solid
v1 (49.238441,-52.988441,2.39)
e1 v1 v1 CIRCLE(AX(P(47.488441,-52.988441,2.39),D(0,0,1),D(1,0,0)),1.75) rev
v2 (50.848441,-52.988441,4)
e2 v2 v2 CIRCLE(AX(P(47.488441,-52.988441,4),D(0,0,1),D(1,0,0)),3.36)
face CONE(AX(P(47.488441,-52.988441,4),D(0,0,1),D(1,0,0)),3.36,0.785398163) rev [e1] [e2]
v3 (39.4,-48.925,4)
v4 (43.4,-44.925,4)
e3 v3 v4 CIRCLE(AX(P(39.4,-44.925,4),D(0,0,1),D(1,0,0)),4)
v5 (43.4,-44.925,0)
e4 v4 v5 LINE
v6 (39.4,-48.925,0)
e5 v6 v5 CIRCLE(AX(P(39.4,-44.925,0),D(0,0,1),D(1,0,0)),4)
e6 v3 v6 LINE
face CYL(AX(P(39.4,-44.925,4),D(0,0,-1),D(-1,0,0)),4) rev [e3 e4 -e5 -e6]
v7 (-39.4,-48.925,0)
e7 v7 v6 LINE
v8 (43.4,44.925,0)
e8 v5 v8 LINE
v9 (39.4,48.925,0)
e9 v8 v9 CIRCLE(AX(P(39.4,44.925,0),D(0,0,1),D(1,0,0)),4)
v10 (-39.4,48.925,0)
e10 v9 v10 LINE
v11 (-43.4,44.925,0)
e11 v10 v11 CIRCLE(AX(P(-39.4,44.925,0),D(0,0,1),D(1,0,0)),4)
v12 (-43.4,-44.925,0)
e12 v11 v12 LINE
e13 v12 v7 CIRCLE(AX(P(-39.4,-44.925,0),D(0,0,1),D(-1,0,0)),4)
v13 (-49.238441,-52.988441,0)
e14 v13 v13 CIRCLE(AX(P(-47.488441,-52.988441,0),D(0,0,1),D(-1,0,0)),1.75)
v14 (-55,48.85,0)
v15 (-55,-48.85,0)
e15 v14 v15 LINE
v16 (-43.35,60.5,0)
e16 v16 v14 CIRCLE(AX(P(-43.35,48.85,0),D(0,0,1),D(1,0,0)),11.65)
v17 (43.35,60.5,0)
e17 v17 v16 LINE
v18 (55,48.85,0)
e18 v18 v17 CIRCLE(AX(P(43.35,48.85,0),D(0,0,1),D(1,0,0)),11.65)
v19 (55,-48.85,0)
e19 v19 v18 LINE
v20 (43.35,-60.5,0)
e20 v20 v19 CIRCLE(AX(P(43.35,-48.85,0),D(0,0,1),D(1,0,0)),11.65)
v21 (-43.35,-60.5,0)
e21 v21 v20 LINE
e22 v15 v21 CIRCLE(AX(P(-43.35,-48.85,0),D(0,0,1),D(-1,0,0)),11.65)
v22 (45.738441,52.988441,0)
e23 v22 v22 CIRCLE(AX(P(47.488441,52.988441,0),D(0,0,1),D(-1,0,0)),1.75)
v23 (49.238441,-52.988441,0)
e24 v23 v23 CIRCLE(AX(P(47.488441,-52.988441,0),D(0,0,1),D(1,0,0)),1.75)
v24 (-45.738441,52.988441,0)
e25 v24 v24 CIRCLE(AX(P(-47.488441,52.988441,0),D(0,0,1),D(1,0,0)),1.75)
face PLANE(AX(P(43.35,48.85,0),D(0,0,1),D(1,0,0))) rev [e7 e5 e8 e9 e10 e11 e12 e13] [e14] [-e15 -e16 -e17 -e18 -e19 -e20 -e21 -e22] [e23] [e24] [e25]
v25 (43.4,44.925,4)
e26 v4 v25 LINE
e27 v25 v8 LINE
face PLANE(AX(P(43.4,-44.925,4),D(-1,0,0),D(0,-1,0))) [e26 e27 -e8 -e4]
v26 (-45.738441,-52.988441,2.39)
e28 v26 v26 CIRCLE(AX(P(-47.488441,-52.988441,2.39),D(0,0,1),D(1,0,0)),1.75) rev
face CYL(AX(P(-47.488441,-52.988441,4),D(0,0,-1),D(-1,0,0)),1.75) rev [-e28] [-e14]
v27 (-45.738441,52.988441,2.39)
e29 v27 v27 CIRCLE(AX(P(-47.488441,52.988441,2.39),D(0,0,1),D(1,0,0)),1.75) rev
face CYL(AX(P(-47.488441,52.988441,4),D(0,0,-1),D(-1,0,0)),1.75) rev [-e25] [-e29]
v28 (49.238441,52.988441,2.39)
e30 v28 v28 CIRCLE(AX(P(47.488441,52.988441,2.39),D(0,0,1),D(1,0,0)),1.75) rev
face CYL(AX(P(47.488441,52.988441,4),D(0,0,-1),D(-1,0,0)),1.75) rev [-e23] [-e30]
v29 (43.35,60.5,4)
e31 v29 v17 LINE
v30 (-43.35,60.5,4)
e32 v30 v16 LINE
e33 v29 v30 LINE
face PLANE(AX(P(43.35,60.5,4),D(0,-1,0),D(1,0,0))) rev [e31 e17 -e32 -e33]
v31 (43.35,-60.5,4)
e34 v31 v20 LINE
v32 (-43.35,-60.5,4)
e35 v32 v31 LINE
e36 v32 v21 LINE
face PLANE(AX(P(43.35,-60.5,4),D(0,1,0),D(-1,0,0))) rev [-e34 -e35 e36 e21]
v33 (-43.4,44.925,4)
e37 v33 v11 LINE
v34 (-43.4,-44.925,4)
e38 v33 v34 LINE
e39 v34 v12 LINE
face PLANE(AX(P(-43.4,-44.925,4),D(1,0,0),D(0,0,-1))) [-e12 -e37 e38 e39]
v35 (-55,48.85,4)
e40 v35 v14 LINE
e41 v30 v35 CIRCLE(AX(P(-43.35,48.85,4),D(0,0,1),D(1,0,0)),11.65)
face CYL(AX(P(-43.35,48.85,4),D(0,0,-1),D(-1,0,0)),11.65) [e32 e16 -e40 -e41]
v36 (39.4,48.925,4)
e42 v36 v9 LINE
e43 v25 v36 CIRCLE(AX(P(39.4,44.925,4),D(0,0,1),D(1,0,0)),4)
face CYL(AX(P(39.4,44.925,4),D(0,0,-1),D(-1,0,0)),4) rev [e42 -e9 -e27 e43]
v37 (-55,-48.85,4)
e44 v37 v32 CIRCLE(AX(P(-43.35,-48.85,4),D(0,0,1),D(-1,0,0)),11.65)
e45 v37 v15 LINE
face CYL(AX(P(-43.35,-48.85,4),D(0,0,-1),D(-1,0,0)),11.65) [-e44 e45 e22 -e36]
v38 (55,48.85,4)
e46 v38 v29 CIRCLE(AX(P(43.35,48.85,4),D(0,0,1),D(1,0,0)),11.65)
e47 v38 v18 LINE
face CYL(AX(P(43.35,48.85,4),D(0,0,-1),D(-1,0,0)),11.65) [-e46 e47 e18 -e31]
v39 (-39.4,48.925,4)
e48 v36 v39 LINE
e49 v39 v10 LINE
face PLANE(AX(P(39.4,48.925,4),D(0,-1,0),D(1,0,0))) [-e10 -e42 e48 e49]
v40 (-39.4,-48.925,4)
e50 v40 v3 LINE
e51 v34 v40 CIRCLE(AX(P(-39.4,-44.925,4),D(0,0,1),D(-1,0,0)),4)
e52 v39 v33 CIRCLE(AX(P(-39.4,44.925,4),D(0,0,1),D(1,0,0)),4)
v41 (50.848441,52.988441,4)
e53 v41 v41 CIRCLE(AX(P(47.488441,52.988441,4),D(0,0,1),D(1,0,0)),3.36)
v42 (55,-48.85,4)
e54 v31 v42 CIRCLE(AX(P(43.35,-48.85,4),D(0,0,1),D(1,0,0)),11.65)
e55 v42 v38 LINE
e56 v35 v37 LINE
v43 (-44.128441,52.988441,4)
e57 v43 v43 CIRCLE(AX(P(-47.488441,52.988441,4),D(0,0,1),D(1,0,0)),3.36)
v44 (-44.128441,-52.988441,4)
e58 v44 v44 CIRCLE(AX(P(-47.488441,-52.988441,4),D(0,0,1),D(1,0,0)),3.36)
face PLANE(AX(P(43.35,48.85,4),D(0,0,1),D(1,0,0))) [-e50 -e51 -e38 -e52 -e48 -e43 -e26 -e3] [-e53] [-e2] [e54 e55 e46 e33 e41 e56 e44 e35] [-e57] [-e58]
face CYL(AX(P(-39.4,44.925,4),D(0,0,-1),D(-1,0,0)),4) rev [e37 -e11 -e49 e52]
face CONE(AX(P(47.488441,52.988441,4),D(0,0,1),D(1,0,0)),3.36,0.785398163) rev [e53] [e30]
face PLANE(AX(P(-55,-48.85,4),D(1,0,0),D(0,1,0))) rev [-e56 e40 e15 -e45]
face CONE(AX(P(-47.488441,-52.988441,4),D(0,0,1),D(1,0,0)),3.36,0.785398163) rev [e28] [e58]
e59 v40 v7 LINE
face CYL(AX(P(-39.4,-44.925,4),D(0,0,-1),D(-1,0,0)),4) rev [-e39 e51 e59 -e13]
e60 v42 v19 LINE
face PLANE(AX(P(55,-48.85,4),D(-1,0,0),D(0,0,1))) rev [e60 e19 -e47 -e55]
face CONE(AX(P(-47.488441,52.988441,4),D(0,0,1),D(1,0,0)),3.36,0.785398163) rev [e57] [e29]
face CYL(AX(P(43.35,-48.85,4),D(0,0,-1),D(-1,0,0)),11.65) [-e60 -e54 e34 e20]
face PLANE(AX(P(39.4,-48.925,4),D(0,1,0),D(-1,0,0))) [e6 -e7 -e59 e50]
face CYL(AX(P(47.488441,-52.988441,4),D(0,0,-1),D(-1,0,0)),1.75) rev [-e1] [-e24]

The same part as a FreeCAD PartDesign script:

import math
import FreeCAD as App
import Part
import Sketcher
from FreeCAD import Vector
Q = App.Units.Quantity

doc = App.newDocument("Part")
body = doc.addObject("PartDesign::Body", "Body")

# Sketch on XY plane
sketch1 = body.newObject("Sketcher::SketchObject", "Sketch")
sketch1.AttachmentSupport = (doc.getObject("XY_Plane"), [""])
sketch1.MapMode = "FlatFace"
sketch1.addGeometry(Part.LineSegment(Vector(-43.4, -60.5, 0), Vector(43.4, -60.5, 0)), False)
sketch1.addGeometry(Part.ArcOfCircle(Part.Circle(Vector(43.4, -48.9, 0), Vector(0, 0, 1), 11.6), math.radians(-90), math.radians(0)), False)
sketch1.addGeometry(Part.LineSegment(Vector(55, -48.9, 0), Vector(55, 48.9, 0)), False)
sketch1.addGeometry(Part.ArcOfCircle(Part.Circle(Vector(43.4, 48.9, 0), Vector(0, 0, 1), 11.6), math.radians(0), math.radians(90)), False)
sketch1.addGeometry(Part.LineSegment(Vector(43.4, 60.5, 0), Vector(-43.4, 60.5, 0)), False)
sketch1.addGeometry(Part.ArcOfCircle(Part.Circle(Vector(-43.4, 48.9, 0), Vector(0, 0, 1), 11.6), math.radians(90), math.radians(180)), False)
sketch1.addGeometry(Part.LineSegment(Vector(-55, 48.9, 0), Vector(-55, -48.9, 0)), False)
sketch1.addGeometry(Part.ArcOfCircle(Part.Circle(Vector(-43.4, -48.9, 0), Vector(0, 0, 1), 11.6), math.radians(180), math.radians(270)), False)
sketch1.addGeometry(Part.Circle(Vector(47.5, -53, 0), Vector(0, 0, 1), 1.8), False)
sketch1.addGeometry(Part.Circle(Vector(-47.5, -53, 0), Vector(0, 0, 1), 1.8), False)
sketch1.addGeometry(Part.Circle(Vector(47.5, 53, 0), Vector(0, 0, 1), 1.8), False)
sketch1.addGeometry(Part.LineSegment(Vector(39.4, -48.9, 0), Vector(-39.4, -48.9, 0)), False)
sketch1.addGeometry(Part.ArcOfCircle(Part.Circle(Vector(-39.4, -44.9, 0), Vector(0, 0, 1), 4), math.radians(180), math.radians(270)), False)
sketch1.addGeometry(Part.LineSegment(Vector(-43.4, -44.9, 0), Vector(-43.4, 44.9, 0)), False)
sketch1.addGeometry(Part.ArcOfCircle(Part.Circle(Vector(-39.4, 44.9, 0), Vector(0, 0, 1), 4), math.radians(90), math.radians(180)), False)
sketch1.addGeometry(Part.LineSegment(Vector(-39.4, 48.9, 0), Vector(39.4, 48.9, 0)), False)
sketch1.addGeometry(Part.ArcOfCircle(Part.Circle(Vector(39.4, 44.9, 0), Vector(0, 0, 1), 4), math.radians(0), math.radians(90)), False)
sketch1.addGeometry(Part.LineSegment(Vector(43.4, 44.9, 0), Vector(43.4, -44.9, 0)), False)
sketch1.addGeometry(Part.ArcOfCircle(Part.Circle(Vector(39.4, -44.9, 0), Vector(0, 0, 1), 4), math.radians(-90), math.radians(0)), False)
sketch1.addGeometry(Part.Circle(Vector(-47.5, 53, 0), Vector(0, 0, 1), 1.8), False)
sketch1.addConstraint(Sketcher.Constraint("Tangent", 0, 2, 1, 1))
sketch1.addConstraint(Sketcher.Constraint("Tangent", 1, 2, 2, 1))
sketch1.addConstraint(Sketcher.Constraint("Tangent", 2, 2, 3, 1))
sketch1.addConstraint(Sketcher.Constraint("Tangent", 3, 2, 4, 1))
sketch1.addConstraint(Sketcher.Constraint("Tangent", 4, 2, 5, 1))
sketch1.addConstraint(Sketcher.Constraint("Tangent", 5, 2, 6, 1))
sketch1.addConstraint(Sketcher.Constraint("Tangent", 6, 2, 7, 1))
sketch1.addConstraint(Sketcher.Constraint("Tangent", 7, 2, 0, 1))
sketch1.addConstraint(Sketcher.Constraint("Tangent", 11, 2, 12, 2))
sketch1.addConstraint(Sketcher.Constraint("Tangent", 12, 1, 13, 1))
sketch1.addConstraint(Sketcher.Constraint("Tangent", 13, 2, 14, 2))
sketch1.addConstraint(Sketcher.Constraint("Tangent", 14, 1, 15, 1))
sketch1.addConstraint(Sketcher.Constraint("Tangent", 15, 2, 16, 2))
sketch1.addConstraint(Sketcher.Constraint("Tangent", 16, 1, 17, 1))
sketch1.addConstraint(Sketcher.Constraint("Tangent", 17, 2, 18, 2))
sketch1.addConstraint(Sketcher.Constraint("Tangent", 18, 1, 11, 1))
sketch1.addConstraint(Sketcher.Constraint("Horizontal", 0))
sketch1.addConstraint(Sketcher.Constraint("Vertical", 2))
sketch1.addConstraint(Sketcher.Constraint("Horizontal", 4))
sketch1.addConstraint(Sketcher.Constraint("Vertical", 6))
sketch1.addConstraint(Sketcher.Constraint("Horizontal", 11))
sketch1.addConstraint(Sketcher.Constraint("Vertical", 13))
sketch1.addConstraint(Sketcher.Constraint("Horizontal", 15))
sketch1.addConstraint(Sketcher.Constraint("Vertical", 17))
sketch1.addConstraint(Sketcher.Constraint("Equal", 1, 3))
sketch1.addConstraint(Sketcher.Constraint("Equal", 3, 5))
sketch1.addConstraint(Sketcher.Constraint("Equal", 5, 7))
sketch1.addConstraint(Sketcher.Constraint("Equal", 8, 9))
sketch1.addConstraint(Sketcher.Constraint("Equal", 9, 10))
sketch1.addConstraint(Sketcher.Constraint("Equal", 12, 14))
sketch1.addConstraint(Sketcher.Constraint("Equal", 14, 16))
sketch1.addConstraint(Sketcher.Constraint("Equal", 16, 18))
sketch1.addConstraint(Sketcher.Constraint("Equal", 10, 19))
sketch1.addConstraint(Sketcher.Constraint("Symmetric", 1, 3, 5, 3, -1, 1))
sketch1.addConstraint(Sketcher.Constraint("Symmetric", 9, 3, 10, 3, -1, 1))
sketch1.addConstraint(Sketcher.Constraint("Symmetric", 12, 3, 16, 3, -1, 1))
sketch1.addConstraint(Sketcher.Constraint("Symmetric", 8, 3, 19, 3, -1, 1))
sketch1.addConstraint(Sketcher.Constraint("Symmetric", 8, 3, 9, 3, -2))
sketch1.addConstraint(Sketcher.Constraint("Radius", 12, Q("4 mm")))
sketch1.addConstraint(Sketcher.Constraint("Diameter", 8, Q("3.5 mm")))
sketch1.addConstraint(Sketcher.Constraint("Radius", 1, Q("11.65 mm")))
sketch1.addConstraint(Sketcher.Constraint("DistanceX", 0, 1, 0, 2, Q("86.7 mm")))
sketch1.addConstraint(Sketcher.Constraint("DistanceX", 11, 2, 11, 1, Q("78.8 mm")))
sketch1.addConstraint(Sketcher.Constraint("DistanceY", 2, 1, 2, 2, Q("97.7 mm")))
sketch1.addConstraint(Sketcher.Constraint("DistanceY", 13, 1, 13, 2, Q("89.85 mm")))
sketch1.addConstraint(Sketcher.Constraint("DistanceX", -1, 1, 8, 3, Q("47.488441 mm")))
sketch1.addConstraint(Sketcher.Constraint("DistanceY", 8, 3, -1, 1, Q("52.988441 mm")))
pad1 = body.newObject("PartDesign::Pad", "Pad")
pad1.Profile = sketch1
pad1.Length = 4

# Sketch on XY plane
sketch2 = body.newObject("Sketcher::SketchObject", "Sketch001")
sketch2.AttachmentSupport = (doc.getObject("XY_Plane"), [""])
sketch2.MapMode = "FlatFace"
sketch2.AttachmentOffset = App.Placement(Vector(0, 0, 4), App.Rotation())
sketch2.addGeometry(Part.Circle(Vector(-47.5, -53, 0), Vector(0, 0, 1), 1.7), False)
sketch2.addGeometry(Part.Circle(Vector(47.5, -53, 0), Vector(0, 0, 1), 1.7), False)
sketch2.addGeometry(Part.Circle(Vector(47.5, 53, 0), Vector(0, 0, 1), 1.7), False)
sketch2.addGeometry(Part.Circle(Vector(-47.5, 53, 0), Vector(0, 0, 1), 1.7), False)
sketch2.addConstraint(Sketcher.Constraint("Equal", 0, 1))
sketch2.addConstraint(Sketcher.Constraint("Equal", 1, 2))
sketch2.addConstraint(Sketcher.Constraint("Equal", 2, 3))
sketch2.addConstraint(Sketcher.Constraint("Symmetric", 0, 3, 2, 3, -1, 1))
sketch2.addConstraint(Sketcher.Constraint("Symmetric", 1, 3, 3, 3, -1, 1))
sketch2.addConstraint(Sketcher.Constraint("Symmetric", 0, 3, 1, 3, -2))
sketch2.addConstraint(Sketcher.Constraint("Diameter", 0, Q("3.4 mm")))
sketch2.addConstraint(Sketcher.Constraint("DistanceX", 0, 3, -1, 1, Q("47.488441 mm")))
sketch2.addConstraint(Sketcher.Constraint("DistanceY", 0, 3, -1, 1, Q("52.988441 mm")))
doc.recompute()
hole = body.newObject("PartDesign::Hole", "Hole")
hole.Profile = sketch2
hole.ThreadType = "None"
hole.Diameter = 3.4
hole.DepthType = "ThroughAll"
hole.HoleCutType = "Countersink"
hole.HoleCutDiameter = 6.72
hole.HoleCutCountersinkAngle = 90

doc.recompute()
